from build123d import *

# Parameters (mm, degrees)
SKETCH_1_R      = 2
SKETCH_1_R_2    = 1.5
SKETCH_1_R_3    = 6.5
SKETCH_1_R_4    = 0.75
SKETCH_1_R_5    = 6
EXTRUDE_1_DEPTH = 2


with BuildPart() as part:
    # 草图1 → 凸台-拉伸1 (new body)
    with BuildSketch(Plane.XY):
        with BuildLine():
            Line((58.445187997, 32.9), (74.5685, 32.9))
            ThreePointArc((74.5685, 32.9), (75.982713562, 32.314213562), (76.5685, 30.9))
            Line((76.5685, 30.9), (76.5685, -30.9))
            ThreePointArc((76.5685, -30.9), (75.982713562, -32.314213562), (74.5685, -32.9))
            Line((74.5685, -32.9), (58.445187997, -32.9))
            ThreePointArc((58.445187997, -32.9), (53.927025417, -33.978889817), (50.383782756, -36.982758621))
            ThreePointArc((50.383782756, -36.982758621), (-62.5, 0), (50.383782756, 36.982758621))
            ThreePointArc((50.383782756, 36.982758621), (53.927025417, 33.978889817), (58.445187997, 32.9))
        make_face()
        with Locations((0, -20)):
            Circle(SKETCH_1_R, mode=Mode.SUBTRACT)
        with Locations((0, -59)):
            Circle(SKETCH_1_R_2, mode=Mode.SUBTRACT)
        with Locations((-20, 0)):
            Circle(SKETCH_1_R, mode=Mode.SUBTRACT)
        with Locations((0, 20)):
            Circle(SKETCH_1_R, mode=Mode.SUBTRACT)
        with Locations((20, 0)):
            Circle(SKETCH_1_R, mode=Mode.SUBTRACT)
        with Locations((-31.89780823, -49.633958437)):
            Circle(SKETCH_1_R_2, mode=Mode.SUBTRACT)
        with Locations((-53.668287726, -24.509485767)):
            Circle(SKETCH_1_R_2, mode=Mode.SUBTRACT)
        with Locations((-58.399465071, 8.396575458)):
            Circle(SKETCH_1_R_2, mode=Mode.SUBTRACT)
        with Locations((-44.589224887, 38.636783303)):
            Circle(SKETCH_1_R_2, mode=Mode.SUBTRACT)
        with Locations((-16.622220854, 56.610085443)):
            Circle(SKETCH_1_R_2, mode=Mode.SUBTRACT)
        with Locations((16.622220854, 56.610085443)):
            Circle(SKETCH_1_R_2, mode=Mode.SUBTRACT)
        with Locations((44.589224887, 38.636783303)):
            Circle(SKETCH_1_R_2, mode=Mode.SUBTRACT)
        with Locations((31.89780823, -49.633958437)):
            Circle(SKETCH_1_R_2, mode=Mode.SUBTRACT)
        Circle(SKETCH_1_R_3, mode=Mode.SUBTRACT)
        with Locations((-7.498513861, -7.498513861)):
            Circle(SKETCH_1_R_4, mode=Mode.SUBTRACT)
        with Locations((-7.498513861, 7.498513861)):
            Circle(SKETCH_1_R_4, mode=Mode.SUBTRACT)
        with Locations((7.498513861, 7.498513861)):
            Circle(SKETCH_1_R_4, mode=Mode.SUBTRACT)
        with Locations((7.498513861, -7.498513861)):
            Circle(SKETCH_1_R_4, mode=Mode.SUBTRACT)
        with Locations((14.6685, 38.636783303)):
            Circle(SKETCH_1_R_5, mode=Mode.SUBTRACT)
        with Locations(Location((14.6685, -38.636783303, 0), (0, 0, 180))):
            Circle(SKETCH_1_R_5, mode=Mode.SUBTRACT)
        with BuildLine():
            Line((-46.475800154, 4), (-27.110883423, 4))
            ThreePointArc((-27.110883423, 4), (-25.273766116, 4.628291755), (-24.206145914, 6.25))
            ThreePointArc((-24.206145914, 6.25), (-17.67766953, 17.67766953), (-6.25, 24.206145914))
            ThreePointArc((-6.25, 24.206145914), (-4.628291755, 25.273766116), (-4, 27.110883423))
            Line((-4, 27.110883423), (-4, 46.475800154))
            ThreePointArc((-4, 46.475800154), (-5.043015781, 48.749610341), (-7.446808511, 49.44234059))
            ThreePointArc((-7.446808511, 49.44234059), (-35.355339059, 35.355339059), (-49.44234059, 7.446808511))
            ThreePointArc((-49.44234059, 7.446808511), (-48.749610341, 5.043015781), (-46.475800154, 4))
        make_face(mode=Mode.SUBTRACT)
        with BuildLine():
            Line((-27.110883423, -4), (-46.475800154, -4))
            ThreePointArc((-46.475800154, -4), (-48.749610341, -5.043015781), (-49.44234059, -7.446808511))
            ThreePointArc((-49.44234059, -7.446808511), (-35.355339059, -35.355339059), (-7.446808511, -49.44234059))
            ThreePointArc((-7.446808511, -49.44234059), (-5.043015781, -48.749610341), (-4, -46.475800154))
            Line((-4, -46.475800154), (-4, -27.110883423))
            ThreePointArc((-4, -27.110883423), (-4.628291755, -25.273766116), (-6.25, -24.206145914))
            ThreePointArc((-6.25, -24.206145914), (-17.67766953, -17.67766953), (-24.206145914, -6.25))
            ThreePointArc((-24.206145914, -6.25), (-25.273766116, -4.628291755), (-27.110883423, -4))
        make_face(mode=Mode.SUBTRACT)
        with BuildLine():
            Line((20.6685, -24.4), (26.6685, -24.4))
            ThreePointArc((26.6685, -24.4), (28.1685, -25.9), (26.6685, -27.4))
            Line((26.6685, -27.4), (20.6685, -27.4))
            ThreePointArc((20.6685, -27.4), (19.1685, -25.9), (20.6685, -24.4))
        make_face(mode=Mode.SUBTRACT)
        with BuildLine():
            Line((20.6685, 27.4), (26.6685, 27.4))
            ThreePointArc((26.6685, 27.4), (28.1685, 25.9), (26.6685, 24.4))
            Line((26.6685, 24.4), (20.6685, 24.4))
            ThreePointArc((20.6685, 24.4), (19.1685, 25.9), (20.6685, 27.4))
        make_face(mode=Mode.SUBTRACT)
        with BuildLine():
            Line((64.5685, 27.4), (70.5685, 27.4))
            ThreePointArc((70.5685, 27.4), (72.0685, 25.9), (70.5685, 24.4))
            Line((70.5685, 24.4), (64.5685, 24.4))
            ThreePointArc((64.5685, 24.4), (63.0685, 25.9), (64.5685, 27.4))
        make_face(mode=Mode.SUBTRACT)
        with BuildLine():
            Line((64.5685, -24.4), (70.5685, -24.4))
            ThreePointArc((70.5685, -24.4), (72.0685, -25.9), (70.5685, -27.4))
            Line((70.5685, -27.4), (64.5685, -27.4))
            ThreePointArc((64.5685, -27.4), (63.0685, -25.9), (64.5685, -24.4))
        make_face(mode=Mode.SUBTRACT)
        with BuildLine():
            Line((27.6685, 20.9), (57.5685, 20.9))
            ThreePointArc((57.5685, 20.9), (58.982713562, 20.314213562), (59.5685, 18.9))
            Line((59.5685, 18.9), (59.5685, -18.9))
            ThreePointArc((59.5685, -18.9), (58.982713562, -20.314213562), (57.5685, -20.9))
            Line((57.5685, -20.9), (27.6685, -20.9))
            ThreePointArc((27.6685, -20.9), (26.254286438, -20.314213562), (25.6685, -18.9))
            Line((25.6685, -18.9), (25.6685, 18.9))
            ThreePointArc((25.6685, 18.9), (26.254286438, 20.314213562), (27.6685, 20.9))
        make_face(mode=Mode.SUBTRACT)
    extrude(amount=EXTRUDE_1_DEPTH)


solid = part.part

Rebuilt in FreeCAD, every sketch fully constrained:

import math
import FreeCAD as App
import Part
import Sketcher

V = App.Vector
Q = App.Units.Quantity

doc = App.newDocument("Part")
body = doc.addObject("PartDesign::Body", "Body")

# Sketch on XY plane
sketch1 = body.newObject("Sketcher::SketchObject", "Sketch")
sketch1.AttachmentSupport = (doc.getObject("XY_Plane"), [""])
sketch1.MapMode = "FlatFace"
sketch1.addGeometry(Part.LineSegment(V(74.6, 32.9, 0), V(58.4, 32.9, 0)), False)
sketch1.addGeometry(Part.ArcOfCircle(Part.Circle(V(58.4, 42.9, 0), V(0, 0, 1), 10), math.radians(-144), math.radians(-90)), False)
sketch1.addGeometry(Part.ArcOfCircle(Part.Circle(V(0, 0, 0), V(0, 0, 1), 62.5), math.radians(36), math.radians(324)), False)
sketch1.addGeometry(Part.ArcOfCircle(Part.Circle(V(58.4, -42.9, 0), V(0, 0, 1), 10), math.radians(90), math.radians(144)), False)
sketch1.addGeometry(Part.LineSegment(V(58.4, -32.9, 0), V(74.6, -32.9, 0)), False)
sketch1.addGeometry(Part.ArcOfCircle(Part.Circle(V(74.6, -30.9, 0), V(0, 0, 1), 2), math.radians(-90), math.radians(0)), False)
sketch1.addGeometry(Part.LineSegment(V(76.6, -30.9, 0), V(76.6, 30.9, 0)), False)
sketch1.addGeometry(Part.ArcOfCircle(Part.Circle(V(74.6, 30.9, 0), V(0, 0, 1), 2), math.radians(0), math.radians(90)), False)
sketch1.addGeometry(Part.Circle(V(31.9, -49.6, 0), V(0, 0, 1), 1.5), False)
sketch1.addGeometry(Part.Circle(V(14.7, -38.6, 0), V(0, 0, 1), 6), False)
sketch1.addGeometry(Part.LineSegment(V(64.6, -24.4, 0), V(70.6, -24.4, 0)), False)
sketch1.addGeometry(Part.ArcOfCircle(Part.Circle(V(70.6, -25.9, 0), V(0, 0, 1), 1.5), math.radians(-90), math.radians(90)), False)
sketch1.addGeometry(Part.LineSegment(V(70.6, -27.4, 0), V(64.6, -27.4, 0)), False)
sketch1.addGeometry(Part.ArcOfCircle(Part.Circle(V(64.6, -25.9, 0), V(0, 0, 1), 1.5), math.radians(90), math.radians(270)), False)
sketch1.addGeometry(Part.LineSegment(V(20.7, -24.4, 0), V(26.7, -24.4, 0)), False)
sketch1.addGeometry(Part.ArcOfCircle(Part.Circle(V(26.7, -25.9, 0), V(0, 0, 1), 1.5), math.radians(-90), math.radians(90)), False)
sketch1.addGeometry(Part.LineSegment(V(26.7, -27.4, 0), V(20.7, -27.4, 0)), False)
sketch1.addGeometry(Part.ArcOfCircle(Part.Circle(V(20.7, -25.9, 0), V(0, 0, 1), 1.5), math.radians(90), math.radians(270)), False)
sketch1.addGeometry(Part.Circle(V(7.5, -7.5, 0), V(0, 0, 1), 0.8), False)
sketch1.addGeometry(Part.Circle(V(0, -59, 0), V(0, 0, 1), 1.5), False)
sketch1.addGeometry(Part.Circle(V(-31.9, -49.6, 0), V(0, 0, 1), 1.5), False)
sketch1.addGeometry(Part.Circle(V(0, -20, 0), V(0, 0, 1), 2), False)
sketch1.addGeometry(Part.ArcOfCircle(Part.Circle(V(-27.1, -7, 0), V(0, 0, 1), 3), math.radians(14), math.radians(90)), False)
sketch1.addGeometry(Part.ArcOfCircle(Part.Circle(V(0, 0, 0), V(0, 0, 1), 25), math.radians(-166), math.radians(-104)), False)
sketch1.addGeometry(Part.ArcOfCircle(Part.Circle(V(-7, -27.1, 0), V(0, 0, 1), 3), math.radians(0), math.radians(76)), False)
sketch1.addGeometry(Part.LineSegment(V(-4, -27.1, 0), V(-4, -46.5, 0)), False)
sketch1.addGeometry(Part.ArcOfCircle(Part.Circle(V(-7, -46.5, 0), V(0, 0, 1), 3), math.radians(-99), math.radians(0)), False)
sketch1.addGeometry(Part.ArcOfCircle(Part.Circle(V(0, 0, 0), V(0, 0, 1), 50), math.radians(-171), math.radians(-99)), False)
sketch1.addGeometry(Part.ArcOfCircle(Part.Circle(V(-46.5, -7, 0), V(0, 0, 1), 3), math.radians(90), math.radians(189)), False)
sketch1.addGeometry(Part.LineSegment(V(-46.5, -4, 0), V(-27.1, -4, 0)), False)
sketch1.addGeometry(Part.Circle(V(-7.5, -7.5, 0), V(0, 0, 1), 0.8), False)
sketch1.addGeometry(Part.Circle(V(-53.7, -24.5, 0), V(0, 0, 1), 1.5), False)
sketch1.addGeometry(Part.LineSegment(V(27.7, 20.9, 0), V(57.6, 20.9, 0)), False)
sketch1.addGeometry(Part.ArcOfCircle(Part.Circle(V(57.6, 18.9, 0), V(0, 0, 1), 2), math.radians(0), math.radians(90)), False)
sketch1.addGeometry(Part.LineSegment(V(59.6, 18.9, 0), V(59.6, -18.9, 0)), False)
sketch1.addGeometry(Part.ArcOfCircle(Part.Circle(V(57.6, -18.9, 0), V(0, 0, 1), 2), math.radians(-90), math.radians(0)), False)
sketch1.addGeometry(Part.LineSegment(V(57.6, -20.9, 0), V(27.7, -20.9, 0)), False)
sketch1.addGeometry(Part.ArcOfCircle(Part.Circle(V(27.7, -18.9, 0), V(0, 0, 1), 2), math.radians(-180), math.radians(-90)), False)
sketch1.addGeometry(Part.LineSegment(V(25.7, -18.9, 0), V(25.7, 18.9, 0)), False)
sketch1.addGeometry(Part.ArcOfCircle(Part.Circle(V(27.7, 18.9, 0), V(0, 0, 1), 2), math.radians(90), math.radians(180)), False)
sketch1.addGeometry(Part.LineSegment(V(64.6, 27.4, 0), V(70.6, 27.4, 0)), False)
sketch1.addGeometry(Part.ArcOfCircle(Part.Circle(V(70.6, 25.9, 0), V(0, 0, 1), 1.5), math.radians(-90), math.radians(90)), False)
sketch1.addGeometry(Part.LineSegment(V(70.6, 24.4, 0), V(64.6, 24.4, 0)), False)
sketch1.addGeometry(Part.ArcOfCircle(Part.Circle(V(64.6, 25.9, 0), V(0, 0, 1), 1.5), math.radians(90), math.radians(270)), False)
sketch1.addGeometry(Part.Circle(V(20, 0, 0), V(0, 0, 1), 2), False)
sketch1.addGeometry(Part.Circle(V(7.5, 7.5, 0), V(0, 0, 1), 0.8), False)
sketch1.addGeometry(Part.LineSegment(V(20.7, 27.4, 0), V(26.7, 27.4, 0)), False)
sketch1.addGeometry(Part.ArcOfCircle(Part.Circle(V(26.7, 25.9, 0), V(0, 0, 1), 1.5), math.radians(-90), math.radians(90)), False)
sketch1.addGeometry(Part.LineSegment(V(26.7, 24.4, 0), V(20.7, 24.4, 0)), False)
sketch1.addGeometry(Part.ArcOfCircle(Part.Circle(V(20.7, 25.9, 0), V(0, 0, 1), 1.5), math.radians(90), math.radians(270)), False)
sketch1.addGeometry(Part.Circle(V(44.6, 38.6, 0), V(0, 0, 1), 1.5), False)
sketch1.addGeometry(Part.Circle(V(14.7, 38.6, 0), V(0, 0, 1), 6), False)
sketch1.addGeometry(Part.Circle(V(16.6, 56.6, 0), V(0, 0, 1), 1.5), False)
sketch1.addGeometry(Part.Circle(V(0, 0, 0), V(0, 0, 1), 6.5), False)
sketch1.addGeometry(Part.Circle(V(-7.5, 7.5, 0), V(0, 0, 1), 0.8), False)
sketch1.addGeometry(Part.Circle(V(-20, 0, 0), V(0, 0, 1), 2), False)
sketch1.addGeometry(Part.Circle(V(0, 20, 0), V(0, 0, 1), 2), False)
sketch1.addGeometry(Part.ArcOfCircle(Part.Circle(V(-46.5, 7, 0), V(0, 0, 1), 3), math.radians(171), math.radians(270)), False)
sketch1.addGeometry(Part.ArcOfCircle(Part.Circle(V(0, 0, 0), V(0, 0, 1), 50), math.radians(99), math.radians(171)), False)
sketch1.addGeometry(Part.ArcOfCircle(Part.Circle(V(-7, 46.5, 0), V(0, 0, 1), 3), math.radians(0), math.radians(99)), False)
sketch1.addGeometry(Part.LineSegment(V(-4, 46.5, 0), V(-4, 27.1, 0)), False)
sketch1.addGeometry(Part.ArcOfCircle(Part.Circle(V(-7, 27.1, 0), V(0, 0, 1), 3), math.radians(-76), math.radians(0)), False)
sketch1.addGeometry(Part.ArcOfCircle(Part.Circle(V(0, 0, 0), V(0, 0, 1), 25), math.radians(104), math.radians(166)), False)
sketch1.addGeometry(Part.ArcOfCircle(Part.Circle(V(-27.1, 7, 0), V(0, 0, 1), 3), math.radians(-90), math.radians(-14)), False)
sketch1.addGeometry(Part.LineSegment(V(-27.1, 4, 0), V(-46.5, 4, 0)), False)
sketch1.addGeometry(Part.Circle(V(-58.4, 8.4, 0), V(0, 0, 1), 1.5), False)
sketch1.addGeometry(Part.Circle(V(-16.6, 56.6, 0), V(0, 0, 1), 1.5), False)
sketch1.addGeometry(Part.Circle(V(-44.6, 38.6, 0), V(0, 0, 1), 1.5), False)
sketch1.addConstraint(Sketcher.Constraint("Tangent", 0, 2, 1, 2))
sketch1.addConstraint(Sketcher.Constraint("Tangent", 1, 1, 2, 1))
sketch1.addConstraint(Sketcher.Constraint("Tangent", 2, 2, 3, 2))
sketch1.addConstraint(Sketcher.Constraint("Tangent", 3, 1, 4, 1))
sketch1.addConstraint(Sketcher.Constraint("Tangent", 4, 2, 5, 1))
sketch1.addConstraint(Sketcher.Constraint("Tangent", 5, 2, 6, 1))
sketch1.addConstraint(Sketcher.Constraint("Tangent", 6, 2, 7, 1))
sketch1.addConstraint(Sketcher.Constraint("Tangent", 7, 2, 0, 1))
sketch1.addConstraint(Sketcher.Constraint("Tangent", 10, 2, 11, 2))
sketch1.addConstraint(Sketcher.Constraint("Tangent", 11, 1, 12, 1))
sketch1.addConstraint(Sketcher.Constraint("Tangent", 12, 2, 13, 2))
sketch1.addConstraint(Sketcher.Constraint("Tangent", 13, 1, 10, 1))
sketch1.addConstraint(Sketcher.Constraint("Tangent", 14, 2, 15, 2))
sketch1.addConstraint(Sketcher.Constraint("Tangent", 15, 1, 16, 1))
sketch1.addConstraint(Sketcher.Constraint("Tangent", 16, 2, 17, 2))
sketch1.addConstraint(Sketcher.Constraint("Tangent", 17, 1, 14, 1))
sketch1.addConstraint(Sketcher.Constraint("Tangent", 22, 1, 23, 1))
sketch1.addConstraint(Sketcher.Constraint("Tangent", 23, 2, 24, 2))
sketch1.addConstraint(Sketcher.Constraint("Tangent", 24, 1, 25, 1))
sketch1.addConstraint(Sketcher.Constraint("Tangent", 25, 2, 26, 2))
sketch1.addConstraint(Sketcher.Constraint("Tangent", 26, 1, 27, 2))
sketch1.addConstraint(Sketcher.Constraint("Tangent", 27, 1, 28, 2))
sketch1.addConstraint(Sketcher.Constraint("Tangent", 28, 1, 29, 1))
sketch1.addConstraint(Sketcher.Constraint("Tangent", 29, 2, 22, 2))
sketch1.addConstraint(Sketcher.Constraint("Tangent", 32, 2, 33, 2))
sketch1.addConstraint(Sketcher.Constraint("Tangent", 33, 1, 34, 1))
sketch1.addConstraint(Sketcher.Constraint("Tangent", 34, 2, 35, 2))
sketch1.addConstraint(Sketcher.Constraint("Tangent", 35, 1, 36, 1))
sketch1.addConstraint(Sketcher.Constraint("Tangent", 36, 2, 37, 2))
sketch1.addConstraint(Sketcher.Constraint("Tangent", 37, 1, 38, 1))
sketch1.addConstraint(Sketcher.Constraint("Tangent", 38, 2, 39, 2))
sketch1.addConstraint(Sketcher.Constraint("Tangent", 39, 1, 32, 1))
sketch1.addConstraint(Sketcher.Constraint("Tangent", 40, 2, 41, 2))
sketch1.addConstraint(Sketcher.Constraint("Tangent", 41, 1, 42, 1))
sketch1.addConstraint(Sketcher.Constraint("Tangent", 42, 2, 43, 2))
sketch1.addConstraint(Sketcher.Constraint("Tangent", 43, 1, 40, 1))
sketch1.addConstraint(Sketcher.Constraint("Tangent", 46, 2, 47, 2))
sketch1.addConstraint(Sketcher.Constraint("Tangent", 47, 1, 48, 1))
sketch1.addConstraint(Sketcher.Constraint("Tangent", 48, 2, 49, 2))
sketch1.addConstraint(Sketcher.Constraint("Tangent", 49, 1, 46, 1))
sketch1.addConstraint(Sketcher.Constraint("Tangent", 57, 1, 58, 2))
sketch1.addConstraint(Sketcher.Constraint("Tangent", 58, 1, 59, 2))
sketch1.addConstraint(Sketcher.Constraint("Tangent", 59, 1, 60, 1))
sketch1.addConstraint(Sketcher.Constraint("Tangent", 60, 2, 61, 2))
sketch1.addConstraint(Sketcher.Constraint("Tangent", 61, 1, 62, 1))
sketch1.addConstraint(Sketcher.Constraint("Tangent", 62, 2, 63, 2))
sketch1.addConstraint(Sketcher.Constraint("Tangent", 63, 1, 64, 1))
sketch1.addConstraint(Sketcher.Constraint("Tangent", 64, 2, 57, 2))
sketch1.addConstraint(Sketcher.Constraint("Horizontal", 0))
sketch1.addConstraint(Sketcher.Constraint("Horizontal", 4))
sketch1.addConstraint(Sketcher.Constraint("Vertical", 6))
sketch1.addConstraint(Sketcher.Constraint("Horizontal", 10))
sketch1.addConstraint(Sketcher.Constraint("Horizontal", 12))
sketch1.addConstraint(Sketcher.Constraint("Horizontal", 14))
sketch1.addConstraint(Sketcher.Constraint("Horizontal", 16))
sketch1.addConstraint(Sketcher.Constraint("Vertical", 25))
sketch1.addConstraint(Sketcher.Constraint("Horizontal", 29))
sketch1.addConstraint(Sketcher.Constraint("Horizontal", 32))
sketch1.addConstraint(Sketcher.Constraint("Vertical", 34))
sketch1.addConstraint(Sketcher.Constraint("Horizontal", 36))
sketch1.addConstraint(Sketcher.Constraint("Vertical", 38))
sketch1.addConstraint(Sketcher.Constraint("Horizontal", 40))
sketch1.addConstraint(Sketcher.Constraint("Horizontal", 42))
sketch1.addConstraint(Sketcher.Constraint("Horizontal", 46))
sketch1.addConstraint(Sketcher.Constraint("Horizontal", 48))
sketch1.addConstraint(Sketcher.Constraint("Vertical", 60))
sketch1.addConstraint(Sketcher.Constraint("Horizontal", 64))
sketch1.addConstraint(Sketcher.Constraint("Coincident", 2, 3, -1, 1))
sketch1.addConstraint(Sketcher.Constraint("Coincident", 23, 3, -1, 1))
sketch1.addConstraint(Sketcher.Constraint("Coincident", 27, 3, -1, 1))
sketch1.addConstraint(Sketcher.Constraint("Coincident", 53, 3, -1, 1))
sketch1.addConstraint(Sketcher.Constraint("Coincident", 58, 3, -1, 1))
sketch1.addConstraint(Sketcher.Constraint("Coincident", 62, 3, -1, 1))
sketch1.addConstraint(Sketcher.Constraint("Equal", 1, 3))
sketch1.addConstraint(Sketcher.Constraint("Equal", 5, 7))
sketch1.addConstraint(Sketcher.Constraint("Equal", 8, 11))
sketch1.addConstraint(Sketcher.Constraint("Equal", 13, 15))
sketch1.addConstraint(Sketcher.Constraint("Equal", 17, 19))
sketch1.addConstraint(Sketcher.Constraint("Equal", 19, 20))
sketch1.addConstraint(Sketcher.Constraint("Equal", 7, 21))
sketch1.addConstraint(Sketcher.Constraint("Equal", 22, 24))
sketch1.addConstraint(Sketcher.Constraint("Equal", 24, 26))
sketch1.addConstraint(Sketcher.Constraint("Equal", 26, 28))
sketch1.addConstraint(Sketcher.Constraint("Equal", 18, 30))
sketch1.addConstraint(Sketcher.Constraint("Equal", 20, 31))
sketch1.addConstraint(Sketcher.Constraint("Equal", 21, 33))
sketch1.addConstraint(Sketcher.Constraint("Equal", 33, 35))
sketch1.addConstraint(Sketcher.Constraint("Equal", 35, 37))
sketch1.addConstraint(Sketcher.Constraint("Equal", 37, 39))
sketch1.addConstraint(Sketcher.Constraint("Equal", 31, 41))
sketch1.addConstraint(Sketcher.Constraint("Equal", 39, 44))
sketch1.addConstraint(Sketcher.Constraint("Equal", 30, 45))
sketch1.addConstraint(Sketcher.Constraint("Equal", 43, 47))
sketch1.addConstraint(Sketcher.Constraint("Equal", 49, 50))
sketch1.addConstraint(Sketcher.Constraint("Equal", 9, 51))
sketch1.addConstraint(Sketcher.Constraint("Equal", 50, 52))
sketch1.addConstraint(Sketcher.Constraint("Equal", 45, 54))
sketch1.addConstraint(Sketcher.Constraint("Equal", 44, 55))
sketch1.addConstraint(Sketcher.Constraint("Equal", 55, 56))
sketch1.addConstraint(Sketcher.Constraint("Equal", 28, 57))
sketch1.addConstraint(Sketcher.Constraint("Equal", 27, 58))
sketch1.addConstraint(Sketcher.Constraint("Equal", 57, 59))
sketch1.addConstraint(Sketcher.Constraint("Equal", 59, 61))
sketch1.addConstraint(Sketcher.Constraint("Equal", 23, 62))
sketch1.addConstraint(Sketcher.Constraint("Equal", 61, 63))
sketch1.addConstraint(Sketcher.Constraint("Equal", 52, 65))
sketch1.addConstraint(Sketcher.Constraint("Equal", 65, 66))
sketch1.addConstraint(Sketcher.Constraint("Equal", 66, 67))
sketch1.addConstraint(Sketcher.Constraint("Symmetric", 30, 3, 45, 3, -1, 1))
sketch1.addConstraint(Sketcher.Constraint("Symmetric", 18, 3, 54, 3, -1, 1))
sketch1.addConstraint(Sketcher.Constraint("Symmetric", 44, 3, 55, 3, -1, 1))
sketch1.addConstraint(Sketcher.Constraint("Symmetric", 21, 3, 56, 3, -1, 1))
sketch1.addConstraint(Sketcher.Constraint("Symmetric", 8, 3, 20, 3, -2))
sketch1.addConstraint(Sketcher.Constraint("Symmetric", 18, 3, 30, 3, -2))
sketch1.addConstraint(Sketcher.Constraint("Symmetric", 52, 3, 66, 3, -2))
sketch1.addConstraint(Sketcher.Constraint("Symmetric", 50, 3, 67, 3, -2))
sketch1.addConstraint(Sketcher.Constraint("Symmetric", 11, 3, 41, 3, -1))
sketch1.addConstraint(Sketcher.Constraint("Symmetric", 15, 3, 47, 3, -1))
sketch1.addConstraint(Sketcher.Constraint("Symmetric", 9, 3, 51, 3, -1))
sketch1.addConstraint(Sketcher.Constraint("PointOnObject", 19, 3, -2))
sketch1.addConstraint(Sketcher.Constraint("PointOnObject", 21, 3, -2))
sketch1.addConstraint(Sketcher.Constraint("PointOnObject", 44, 3, -1))
sketch1.addConstraint(Sketcher.Constraint("Horizontal", 13, 3, 15, 3))
sketch1.addConstraint(Sketcher.Constraint("Horizontal", 50, 3, 51, 3))
sketch1.addConstraint(Sketcher.Constraint("Vertical", 1, 3, 3, 3))
sketch1.addConstraint(Sketcher.Constraint("Vertical", 13, 3, 43, 3))
sketch1.addConstraint(Sketcher.Constraint("Vertical", 17, 3, 49, 3))
sketch1.addConstraint(Sketcher.Constraint("Vertical", 28, 3, 57, 3))
sketch1.addConstraint(Sketcher.Constraint("Vertical", 26, 3, 59, 3))
sketch1.addConstraint(Sketcher.Constraint("Equal", 12, 14))
sketch1.addConstraint(Sketcher.Constraint("Equal", 64, 25))
sketch1.addConstraint(Sketcher.Constraint("Diameter", 8, Q("3 mm")))
sketch1.addConstraint(Sketcher.Constraint("Diameter", 9, Q("12 mm")))
sketch1.addConstraint(Sketcher.Constraint("Diameter", 21, Q("4 mm")))
sketch1.addConstraint(Sketcher.Constraint("Diameter", 53, Q("13 mm")))
sketch1.addConstraint(Sketcher.Constraint("Radius", 1, Q("10 mm")))
sketch1.addConstraint(Sketcher.Constraint("Radius", 22, Q("3 mm")))
sketch1.addConstraint(Sketcher.Constraint("Radius", 23, Q("25 mm")))
sketch1.addConstraint(Sketcher.Constraint("Radius", 27, Q("50 mm")))
sketch1.addConstraint(Sketcher.Constraint("Diameter", 18, Q("1.5 mm")))
sketch1.addConstraint(Sketcher.Constraint("Radius", 2, Q("62.5 mm")))
sketch1.addConstraint(Sketcher.Constraint("DistanceX", 10, 1, 10, 2, Q("6 mm")))
sketch1.addConstraint(Sketcher.Constraint("DistanceX", 32, 1, 32, 2, Q("29.9 mm")))
sketch1.addConstraint(Sketcher.Constraint("DistanceY", 6, 1, 6, 2, Q("61.8 mm")))
sketch1.addConstraint(Sketcher.Constraint("DistanceY", 34, 2, 34, 1, Q("37.8 mm")))
sketch1.addConstraint(Sketcher.Constraint("DistanceY", 19, 3, -1, 1, Q("59 mm")))
sketch1.addConstraint(Sketcher.Constraint("DistanceY", 21, 3, -1, 1, Q("20 mm")))
sketch1.addConstraint(Sketcher.Constraint("DistanceY", 22, 3, -1, 1, Q("7 mm")))
sketch1.addConstraint(Sketcher.Constraint("DistanceX", -1, 1, 44, 3, Q("20 mm")))
sketch1.addConstraint(Sketcher.Constraint("DistanceY", 11, 3, -1, 1, Q("25.9 mm")))
sketch1.addConstraint(Sketcher.Constraint("DistanceY", -1, 1, 33, 3, Q("18.9 mm")))
sketch1.addConstraint(Sketcher.Constraint("DistanceX", -1, 1, 5, 3, Q("74.5685 mm")))
sketch1.addConstraint(Sketcher.Constraint("DistanceX", -1, 1, 9, 3, Q("14.6685 mm")))
sketch1.addConstraint(Sketcher.Constraint("DistanceX", -1, 1, 11, 3, Q("70.5685 mm")))
sketch1.addConstraint(Sketcher.Constraint("DistanceX", -1, 1, 15, 3, Q("26.6685 mm")))
sketch1.addConstraint(Sketcher.Constraint("DistanceX", -1, 1, 33, 3, Q("57.5685 mm")))
sketch1.addConstraint(Sketcher.Constraint("DistanceX", -1, 1, 8, 3, Q("31.897808 mm")))
sketch1.addConstraint(Sketcher.Constraint("DistanceY", 8, 3, -1, 1, Q("49.633958 mm")))
sketch1.addConstraint(Sketcher.Constraint("DistanceX", -1, 1, 52, 3, Q("16.622221 mm")))
sketch1.addConstraint(Sketcher.Constraint("DistanceY", 9, 3, -1, 1, Q("38.636783 mm")))
sketch1.addConstraint(Sketcher.Constraint("DistanceX", -1, 1, 18, 3, Q("7.498514 mm")))
sketch1.addConstraint(Sketcher.Constraint("DistanceY", 18, 3, -1, 1, Q("7.498514 mm")))
sketch1.addConstraint(Sketcher.Constraint("DistanceX", 31, 3, -1, 1, Q("53.668288 mm")))
sketch1.addConstraint(Sketcher.Constraint("DistanceY", 31, 3, -1, 1, Q("24.509486 mm")))
sketch1.addConstraint(Sketcher.Constraint("DistanceX", -1, 1, 50, 3, Q("44.589225 mm")))
sketch1.addConstraint(Sketcher.Constraint("DistanceY", -1, 1, 52, 3, Q("56.610085 mm")))
sketch1.addConstraint(Sketcher.Constraint("DistanceX", 65, 3, -1, 1, Q("58.399465 mm")))
sketch1.addConstraint(Sketcher.Constraint("DistanceY", -1, 1, 65, 3, Q("8.396575 mm")))
pad1 = body.newObject("PartDesign::Pad", "Pad")
pad1.Profile = sketch1
pad1.Length = 2

doc.recompute()
